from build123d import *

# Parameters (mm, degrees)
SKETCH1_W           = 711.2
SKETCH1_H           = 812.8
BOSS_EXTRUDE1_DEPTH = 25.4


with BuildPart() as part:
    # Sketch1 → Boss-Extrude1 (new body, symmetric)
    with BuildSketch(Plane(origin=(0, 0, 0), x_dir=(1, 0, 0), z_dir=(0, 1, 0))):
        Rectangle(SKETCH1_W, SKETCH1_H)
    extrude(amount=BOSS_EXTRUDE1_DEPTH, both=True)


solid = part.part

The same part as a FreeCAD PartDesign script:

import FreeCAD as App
import Part
import Sketcher
Q = App.Units.Quantity

doc = App.newDocument("Part")
body = doc.addObject("PartDesign::Body", "Body")

sketch1 = body.newObject("Sketcher::SketchObject", "Sketch")
sketch1.AttachmentSupport = (doc.getObject("XZ_Plane"), [""])
sketch1.MapMode = "FlatFace"
sketch1.addGeometry([
    Part.LineSegment(App.Vector(-356, -406, 0), App.Vector(-356, 406, 0)),
    Part.LineSegment(App.Vector(-356, 406, 0), App.Vector(356, 406, 0)),
    Part.LineSegment(App.Vector(356, 406, 0), App.Vector(356, -406, 0)),
    Part.LineSegment(App.Vector(356, -406, 0), App.Vector(-356, -406, 0)),
], False)
sketch1.addConstraint([
    Sketcher.Constraint("Coincident", 0, 2, 1, 1),
    Sketcher.Constraint("Coincident", 1, 2, 2, 1),
    Sketcher.Constraint("Coincident", 2, 2, 3, 1),
    Sketcher.Constraint("Coincident", 3, 2, 0, 1),
    Sketcher.Constraint("Vertical", 0),
    Sketcher.Constraint("Horizontal", 1),
    Sketcher.Constraint("Vertical", 2),
    Sketcher.Constraint("Horizontal", 3),
    Sketcher.Constraint("Symmetric", 0, 2, 2, 2, -1, 1),
    Sketcher.Constraint("DistanceX", 1, 1, 1, 2, Q("28 in")),
    Sketcher.Constraint("DistanceY", 0, 1, 0, 2, Q("32 in")),
])
pad1 = body.newObject("PartDesign::Pad", "Pad")
pad1.Profile = sketch1
pad1.Length = Q("2 in")
pad1.Midplane = True

doc.recompute()
